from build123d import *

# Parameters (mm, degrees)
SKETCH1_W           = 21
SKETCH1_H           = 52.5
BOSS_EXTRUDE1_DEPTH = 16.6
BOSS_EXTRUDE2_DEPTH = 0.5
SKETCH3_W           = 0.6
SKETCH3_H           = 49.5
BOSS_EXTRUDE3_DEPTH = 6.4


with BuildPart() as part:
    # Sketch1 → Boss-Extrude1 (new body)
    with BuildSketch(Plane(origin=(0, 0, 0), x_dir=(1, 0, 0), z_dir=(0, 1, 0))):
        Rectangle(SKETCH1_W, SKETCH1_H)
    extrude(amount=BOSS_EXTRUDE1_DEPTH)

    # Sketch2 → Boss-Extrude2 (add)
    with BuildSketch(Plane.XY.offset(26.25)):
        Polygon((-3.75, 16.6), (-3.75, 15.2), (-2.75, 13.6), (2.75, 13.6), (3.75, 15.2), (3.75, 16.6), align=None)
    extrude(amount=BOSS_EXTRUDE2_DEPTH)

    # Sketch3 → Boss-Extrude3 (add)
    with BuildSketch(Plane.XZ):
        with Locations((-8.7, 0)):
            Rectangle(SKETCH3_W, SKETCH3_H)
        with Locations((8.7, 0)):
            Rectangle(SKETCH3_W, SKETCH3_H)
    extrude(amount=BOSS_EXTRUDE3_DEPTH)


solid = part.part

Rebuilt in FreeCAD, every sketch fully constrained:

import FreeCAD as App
import Part
import Sketcher
from FreeCAD import Vector


def add_polygon(sketch, points):
    """Adds a closed chain of lines whose ends are joined by coincident constraints."""
    first, n = sketch.GeometryCount, len(points)
    for a, b in zip(points, points[1:] + points[:1]):
        sketch.addGeometry(Part.LineSegment(App.Vector(*a, 0), App.Vector(*b, 0)), False)
    for i in range(n):
        sketch.addConstraint(Sketcher.Constraint("Coincident", first + i, 2, first + (i + 1) % n, 1))

doc = App.newDocument("Part")
body = doc.addObject("PartDesign::Body", "Body")

# Sketch on XZ plane
sketch1 = body.newObject("Sketcher::SketchObject", "Sketch")
sketch1.AttachmentSupport = (doc.getObject("XZ_Plane"), [""])
sketch1.MapMode = "FlatFace"
add_polygon(sketch1, [(-10, -26), (-10, 26), (10, 26), (10, -26)])  # lines 0-3
sketch1.addConstraint([
    Sketcher.Constraint("Vertical", 0),
    Sketcher.Constraint("Horizontal", 1),
    Sketcher.Constraint("Vertical", 2),
    Sketcher.Constraint("Horizontal", 3),
    Sketcher.Constraint("Symmetric", 0, 2, 2, 2, -1, 1),
    Sketcher.Constraint("DistanceX", 1, 1, 1, 2, 21.0),
    Sketcher.Constraint("DistanceY", 0, 1, 0, 2, 52.5),
])
pad1 = body.newObject("PartDesign::Pad", "Pad")
pad1.Profile = sketch1
pad1.Length = 16.6
pad1.Reversed = True

# Sketch on XY plane
sketch2 = body.newObject("Sketcher::SketchObject", "Sketch001")
sketch2.AttachmentSupport = (doc.getObject("XY_Plane"), [""])
sketch2.MapMode = "FlatFace"
sketch2.AttachmentOffset = App.Placement(Vector(0, 0, 26.25), App.Rotation())
add_polygon(sketch2, [(-3.8, 16.6), (-3.8, 15.2), (-2.8, 13.6), (2.8, 13.6), (3.8, 15.2), (3.8, 16.6)])  # lines 0-5
sketch2.addConstraint([
    Sketcher.Constraint("Vertical", 0),
    Sketcher.Constraint("Horizontal", 2),
    Sketcher.Constraint("Vertical", 4),
    Sketcher.Constraint("Horizontal", 5),
    Sketcher.Constraint("Symmetric", 0, 2, 3, 2, -2),
    Sketcher.Constraint("Equal", 1, 3),
    Sketcher.Constraint("DistanceX", 2, 1, 2, 2, 5.5),
    Sketcher.Constraint("DistanceX", 5, 2, 5, 1, 7.5),
    Sketcher.Constraint("DistanceY", 0, 2, 0, 1, 1.4),
    Sketcher.Constraint("DistanceY", 2, 2, 4, 2, 3.0),
    Sketcher.Constraint("DistanceY", -1, 1, 0, 2, 15.2),
])
pad2 = body.newObject("PartDesign::Pad", "Pad001")
pad2.Profile = sketch2
pad2.Length = 0.5

# Sketch on XZ plane
sketch3 = body.newObject("Sketcher::SketchObject", "Sketch002")
sketch3.AttachmentSupport = (doc.getObject("XZ_Plane"), [""])
sketch3.MapMode = "FlatFace"
add_polygon(sketch3, [(-9, 24.8), (-9, -24.8), (-8.4, -24.8), (-8.4, 24.8)])  # lines 0-3
add_polygon(sketch3, [(8.4, 24.8), (8.4, -24.8), (9, -24.8), (9, 24.8)])  # lines 4-7
sketch3.addConstraint([
    Sketcher.Constraint("Vertical", 0),
    Sketcher.Constraint("Horizontal", 1),
    Sketcher.Constraint("Vertical", 2),
    Sketcher.Constraint("Horizontal", 3),
    Sketcher.Constraint("Vertical", 4),
    Sketcher.Constraint("Horizontal", 5),
    Sketcher.Constraint("Vertical", 6),
    Sketcher.Constraint("Horizontal", 7),
    Sketcher.Constraint("Symmetric", 2, 2, 4, 2, -1, 1),
    Sketcher.Constraint("Symmetric", 0, 2, 6, 2, -1, 1),
    Sketcher.Constraint("Horizontal", 1, 2, 4, 2),
    Sketcher.Constraint("DistanceX", 1, 1, 1, 2, 0.6),
    Sketcher.Constraint("DistanceY", 0, 2, 0, 1, 49.5),
    Sketcher.Constraint("DistanceX", 0, 2, -1, 1, 9.0),
])
pad3 = body.newObject("PartDesign::Pad", "Pad002")
pad3.Profile = sketch3
pad3.Length = 6.4

doc.recompute()
